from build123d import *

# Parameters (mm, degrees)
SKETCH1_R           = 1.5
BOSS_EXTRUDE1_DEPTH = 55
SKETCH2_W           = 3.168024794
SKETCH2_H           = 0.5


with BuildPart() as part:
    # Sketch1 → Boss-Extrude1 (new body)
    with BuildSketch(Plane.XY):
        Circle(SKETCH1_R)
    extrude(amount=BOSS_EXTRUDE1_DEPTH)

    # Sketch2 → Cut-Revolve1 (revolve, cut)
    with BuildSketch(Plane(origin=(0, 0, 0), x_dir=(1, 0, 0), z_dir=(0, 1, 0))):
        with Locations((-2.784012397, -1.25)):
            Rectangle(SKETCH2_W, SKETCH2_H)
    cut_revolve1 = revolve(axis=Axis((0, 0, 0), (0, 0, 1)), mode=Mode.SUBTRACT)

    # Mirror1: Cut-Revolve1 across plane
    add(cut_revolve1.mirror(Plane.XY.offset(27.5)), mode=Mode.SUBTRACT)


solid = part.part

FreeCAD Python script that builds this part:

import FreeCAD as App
import Part
import Sketcher
from FreeCAD import Vector


def add_polygon(sketch, points):
    """Adds a closed chain of lines whose ends are joined by coincident constraints."""
    first, n = sketch.GeometryCount, len(points)
    for a, b in zip(points, points[1:] + points[:1]):
        sketch.addGeometry(Part.LineSegment(App.Vector(*a, 0), App.Vector(*b, 0)), False)
    for i in range(n):
        sketch.addConstraint(Sketcher.Constraint("Coincident", first + i, 2, first + (i + 1) % n, 1))

doc = App.newDocument("Part")
body = doc.addObject("PartDesign::Body", "Body")

sketch1 = body.newObject("Sketcher::SketchObject", "Sketch")
sketch1.AttachmentSupport = (doc.getObject("XY_Plane"), [""])
sketch1.MapMode = "FlatFace"
sketch1.addGeometry(Part.Circle(Vector(0, 0, 0), Vector(0, 0, 1), 1.5), False)
sketch1.addConstraint([
    Sketcher.Constraint("Coincident", 0, 3, -1, 1),
    Sketcher.Constraint("Diameter", 0, 3.0),
])
pad1 = body.newObject("PartDesign::Pad", "Pad")
pad1.Profile = sketch1
pad1.Length = 55

sketch2 = body.newObject("Sketcher::SketchObject", "Sketch001")
sketch2.AttachmentSupport = (doc.getObject("XZ_Plane"), [""])
sketch2.MapMode = "FlatFace"
add_polygon(sketch2, [(-4.4, 1), (-4.4, 1.5), (-1.2, 1.5), (-1.2, 1)])
sketch2.addConstraint([
    Sketcher.Constraint("Vertical", 0),
    Sketcher.Constraint("Horizontal", 1),
    Sketcher.Constraint("Vertical", 2),
    Sketcher.Constraint("Horizontal", 3),
    Sketcher.Constraint("DistanceY", 0, 1, 0, 2, 0.5),
    Sketcher.Constraint("DistanceY", -1, 1, 2, 2, 1.0),
    Sketcher.Constraint("DistanceX", 1, 2, -1, 1, 1.2),
    Sketcher.Constraint("DistanceX", 1, 1, 1, 2, 3.168025),
])
groove = body.newObject("PartDesign::Groove", "Groove")
groove.Profile = sketch2
groove.ReferenceAxis = (sketch2, ["V_Axis"])
groove.Angle = 360
doc.recompute()

datumplane = body.newObject("PartDesign::Plane", "DatumPlane")
datumplane.AttachmentSupport = (doc.getObject("XY_Plane"), [""])
datumplane.MapMode = "FlatFace"
datumplane.AttachmentOffset = App.Placement(Vector(0, 0, 27.5), App.Rotation())
mirrored = body.newObject("PartDesign::Mirrored", "Mirrored")
mirrored.Originals = [groove]
mirrored.MirrorPlane = (datumplane, [""])
body.Tip = mirrored

doc.recompute()
